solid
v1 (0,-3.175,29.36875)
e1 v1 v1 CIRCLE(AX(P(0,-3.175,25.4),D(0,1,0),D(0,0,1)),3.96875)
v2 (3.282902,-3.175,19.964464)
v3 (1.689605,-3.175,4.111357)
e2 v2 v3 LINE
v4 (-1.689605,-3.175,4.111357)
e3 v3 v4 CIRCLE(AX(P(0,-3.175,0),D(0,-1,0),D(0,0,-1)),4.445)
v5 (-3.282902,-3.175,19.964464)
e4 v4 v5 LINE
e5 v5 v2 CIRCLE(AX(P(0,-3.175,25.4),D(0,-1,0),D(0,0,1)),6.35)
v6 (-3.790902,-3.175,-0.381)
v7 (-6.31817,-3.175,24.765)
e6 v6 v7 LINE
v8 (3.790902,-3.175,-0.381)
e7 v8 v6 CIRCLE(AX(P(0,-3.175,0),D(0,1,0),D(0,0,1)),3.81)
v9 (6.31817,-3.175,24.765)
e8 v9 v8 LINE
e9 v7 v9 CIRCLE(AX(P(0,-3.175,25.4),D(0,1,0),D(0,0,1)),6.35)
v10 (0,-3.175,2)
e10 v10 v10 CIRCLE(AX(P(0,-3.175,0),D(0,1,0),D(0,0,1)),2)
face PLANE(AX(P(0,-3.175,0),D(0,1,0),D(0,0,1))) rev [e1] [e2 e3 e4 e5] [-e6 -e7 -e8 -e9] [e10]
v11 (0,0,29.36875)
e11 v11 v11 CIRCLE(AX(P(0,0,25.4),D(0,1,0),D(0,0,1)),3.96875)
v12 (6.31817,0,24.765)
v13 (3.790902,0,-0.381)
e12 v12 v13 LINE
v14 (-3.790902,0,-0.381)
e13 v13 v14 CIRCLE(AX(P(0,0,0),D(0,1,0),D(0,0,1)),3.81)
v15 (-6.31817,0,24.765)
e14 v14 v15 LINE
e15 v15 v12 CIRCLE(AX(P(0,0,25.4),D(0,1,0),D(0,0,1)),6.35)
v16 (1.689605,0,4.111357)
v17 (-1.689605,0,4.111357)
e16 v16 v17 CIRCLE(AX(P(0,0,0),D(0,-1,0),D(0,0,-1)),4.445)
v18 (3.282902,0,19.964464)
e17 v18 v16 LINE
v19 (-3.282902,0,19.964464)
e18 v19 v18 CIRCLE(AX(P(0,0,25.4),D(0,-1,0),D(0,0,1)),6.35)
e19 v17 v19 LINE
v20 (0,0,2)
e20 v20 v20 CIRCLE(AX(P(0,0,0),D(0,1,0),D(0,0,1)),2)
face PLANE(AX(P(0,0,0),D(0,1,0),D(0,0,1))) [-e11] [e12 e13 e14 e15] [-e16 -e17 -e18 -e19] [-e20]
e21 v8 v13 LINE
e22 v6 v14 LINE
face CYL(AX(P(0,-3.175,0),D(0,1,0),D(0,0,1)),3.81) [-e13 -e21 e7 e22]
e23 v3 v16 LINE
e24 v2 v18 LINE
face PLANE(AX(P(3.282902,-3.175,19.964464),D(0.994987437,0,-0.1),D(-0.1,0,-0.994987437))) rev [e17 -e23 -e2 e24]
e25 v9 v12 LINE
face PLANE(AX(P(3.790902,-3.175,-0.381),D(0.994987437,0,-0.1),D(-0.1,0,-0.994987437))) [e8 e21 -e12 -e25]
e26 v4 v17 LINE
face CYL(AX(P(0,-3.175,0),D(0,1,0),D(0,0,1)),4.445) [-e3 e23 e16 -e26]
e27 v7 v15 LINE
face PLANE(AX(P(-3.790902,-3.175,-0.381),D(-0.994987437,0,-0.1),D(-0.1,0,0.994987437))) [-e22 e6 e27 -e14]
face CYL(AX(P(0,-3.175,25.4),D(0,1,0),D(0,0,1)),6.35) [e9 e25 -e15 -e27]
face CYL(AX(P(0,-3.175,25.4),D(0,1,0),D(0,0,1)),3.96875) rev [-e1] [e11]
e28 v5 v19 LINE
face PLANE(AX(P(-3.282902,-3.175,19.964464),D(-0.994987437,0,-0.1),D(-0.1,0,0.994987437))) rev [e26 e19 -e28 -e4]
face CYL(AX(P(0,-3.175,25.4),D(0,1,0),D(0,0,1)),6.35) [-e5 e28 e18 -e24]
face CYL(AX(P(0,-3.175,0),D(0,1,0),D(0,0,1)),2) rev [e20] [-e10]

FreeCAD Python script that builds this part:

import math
import FreeCAD as App
import Part
import Sketcher
from FreeCAD import Vector
Q = App.Units.Quantity

doc = App.newDocument("Part")
body = doc.addObject("PartDesign::Body", "Body")

# Sketch on XZ plane
sketch1 = body.newObject("Sketcher::SketchObject", "Sketch")
sketch1.AttachmentSupport = (doc.getObject("XZ_Plane"), [""])
sketch1.MapMode = "FlatFace"
sketch1.addGeometry([
    Part.LineSegment(Vector(-3.790902, -0.381, 0), Vector(-6.31817, 24.765, 0)),  # 0
    Part.ArcOfCircle(Part.Circle(Vector(0, 25.4, 0), Vector(0, 0, 1), 6.35), math.radians(-5.73917), math.radians(185.73917)),  # 1
    Part.LineSegment(Vector(6.31817, 24.765, 0), Vector(3.790902, -0.381, 0)),  # 2
    Part.ArcOfCircle(Part.Circle(Vector(0, 0, 0), Vector(0, 0, 1), 3.81), math.radians(-174.26083), math.radians(-5.73917)),  # 3
    Part.Circle(Vector(0, 25.4, 0), Vector(0, 0, 1), 3.96875),  # 4
    Part.LineSegment(Vector(1.689605, 4.111357, 0), Vector(3.282902, 19.964464, 0)),  # 5
    Part.ArcOfCircle(Part.Circle(Vector(0, 25.4, 0), Vector(0, 0, 1), 6.35), math.radians(-121.130727), math.radians(-58.869273)),  # 6
    Part.LineSegment(Vector(-3.282902, 19.964464, 0), Vector(-1.689605, 4.111357, 0)),  # 7
    Part.ArcOfCircle(Part.Circle(Vector(0, 0, 0), Vector(0, 0, 1), 4.445), math.radians(67.65928), math.radians(112.34072)),  # 8
    Part.Circle(Vector(0, 0, 0), Vector(0, 0, 1), 2),  # 9
], False)
sketch1.addConstraint([
    Sketcher.Constraint("Tangent", 0, 2, 1, 2),
    Sketcher.Constraint("Tangent", 1, 1, 2, 1),
    Sketcher.Constraint("Tangent", 2, 2, 3, 2),
    Sketcher.Constraint("Tangent", 3, 1, 0, 1),
    Sketcher.Constraint("Coincident", 5, 2, 6, 2),
    Sketcher.Constraint("Coincident", 6, 1, 7, 1),
    Sketcher.Constraint("Coincident", 7, 2, 8, 2),
    Sketcher.Constraint("Coincident", 8, 1, 5, 1),
    Sketcher.Constraint("Coincident", 3, 3, -1, 1),
    Sketcher.Constraint("Coincident", 8, 3, -1, 1),
    Sketcher.Constraint("Coincident", 9, 3, -1, 1),
    Sketcher.Constraint("Coincident", 4, 3, 1, 3),
    Sketcher.Constraint("Coincident", 6, 3, 1, 3),
    Sketcher.Constraint("Equal", 1, 6),
    Sketcher.Constraint("Symmetric", 5, 2, 6, 1, -2),
    Sketcher.Constraint("Parallel", 2, 5),
    Sketcher.Constraint("Parallel", 0, 7),
    Sketcher.Constraint("Radius", 1, Q("0.25 in")),
    Sketcher.Constraint("Radius", 3, Q("0.15 in")),
    Sketcher.Constraint("Diameter", 4, Q("0.3125 in")),
    Sketcher.Constraint("DistanceY", -1, 1, 1, 3, Q("1 in")),
    Sketcher.Constraint("Radius", 8, Q("0.175 in")),
    Sketcher.Constraint("Diameter", 9, 4.0),
    Sketcher.Constraint("Distance", 5, 15.932971),
])
pad1 = body.newObject("PartDesign::Pad", "Pad")
pad1.Profile = sketch1
pad1.Length = Q("0.125 in")

doc.recompute()
